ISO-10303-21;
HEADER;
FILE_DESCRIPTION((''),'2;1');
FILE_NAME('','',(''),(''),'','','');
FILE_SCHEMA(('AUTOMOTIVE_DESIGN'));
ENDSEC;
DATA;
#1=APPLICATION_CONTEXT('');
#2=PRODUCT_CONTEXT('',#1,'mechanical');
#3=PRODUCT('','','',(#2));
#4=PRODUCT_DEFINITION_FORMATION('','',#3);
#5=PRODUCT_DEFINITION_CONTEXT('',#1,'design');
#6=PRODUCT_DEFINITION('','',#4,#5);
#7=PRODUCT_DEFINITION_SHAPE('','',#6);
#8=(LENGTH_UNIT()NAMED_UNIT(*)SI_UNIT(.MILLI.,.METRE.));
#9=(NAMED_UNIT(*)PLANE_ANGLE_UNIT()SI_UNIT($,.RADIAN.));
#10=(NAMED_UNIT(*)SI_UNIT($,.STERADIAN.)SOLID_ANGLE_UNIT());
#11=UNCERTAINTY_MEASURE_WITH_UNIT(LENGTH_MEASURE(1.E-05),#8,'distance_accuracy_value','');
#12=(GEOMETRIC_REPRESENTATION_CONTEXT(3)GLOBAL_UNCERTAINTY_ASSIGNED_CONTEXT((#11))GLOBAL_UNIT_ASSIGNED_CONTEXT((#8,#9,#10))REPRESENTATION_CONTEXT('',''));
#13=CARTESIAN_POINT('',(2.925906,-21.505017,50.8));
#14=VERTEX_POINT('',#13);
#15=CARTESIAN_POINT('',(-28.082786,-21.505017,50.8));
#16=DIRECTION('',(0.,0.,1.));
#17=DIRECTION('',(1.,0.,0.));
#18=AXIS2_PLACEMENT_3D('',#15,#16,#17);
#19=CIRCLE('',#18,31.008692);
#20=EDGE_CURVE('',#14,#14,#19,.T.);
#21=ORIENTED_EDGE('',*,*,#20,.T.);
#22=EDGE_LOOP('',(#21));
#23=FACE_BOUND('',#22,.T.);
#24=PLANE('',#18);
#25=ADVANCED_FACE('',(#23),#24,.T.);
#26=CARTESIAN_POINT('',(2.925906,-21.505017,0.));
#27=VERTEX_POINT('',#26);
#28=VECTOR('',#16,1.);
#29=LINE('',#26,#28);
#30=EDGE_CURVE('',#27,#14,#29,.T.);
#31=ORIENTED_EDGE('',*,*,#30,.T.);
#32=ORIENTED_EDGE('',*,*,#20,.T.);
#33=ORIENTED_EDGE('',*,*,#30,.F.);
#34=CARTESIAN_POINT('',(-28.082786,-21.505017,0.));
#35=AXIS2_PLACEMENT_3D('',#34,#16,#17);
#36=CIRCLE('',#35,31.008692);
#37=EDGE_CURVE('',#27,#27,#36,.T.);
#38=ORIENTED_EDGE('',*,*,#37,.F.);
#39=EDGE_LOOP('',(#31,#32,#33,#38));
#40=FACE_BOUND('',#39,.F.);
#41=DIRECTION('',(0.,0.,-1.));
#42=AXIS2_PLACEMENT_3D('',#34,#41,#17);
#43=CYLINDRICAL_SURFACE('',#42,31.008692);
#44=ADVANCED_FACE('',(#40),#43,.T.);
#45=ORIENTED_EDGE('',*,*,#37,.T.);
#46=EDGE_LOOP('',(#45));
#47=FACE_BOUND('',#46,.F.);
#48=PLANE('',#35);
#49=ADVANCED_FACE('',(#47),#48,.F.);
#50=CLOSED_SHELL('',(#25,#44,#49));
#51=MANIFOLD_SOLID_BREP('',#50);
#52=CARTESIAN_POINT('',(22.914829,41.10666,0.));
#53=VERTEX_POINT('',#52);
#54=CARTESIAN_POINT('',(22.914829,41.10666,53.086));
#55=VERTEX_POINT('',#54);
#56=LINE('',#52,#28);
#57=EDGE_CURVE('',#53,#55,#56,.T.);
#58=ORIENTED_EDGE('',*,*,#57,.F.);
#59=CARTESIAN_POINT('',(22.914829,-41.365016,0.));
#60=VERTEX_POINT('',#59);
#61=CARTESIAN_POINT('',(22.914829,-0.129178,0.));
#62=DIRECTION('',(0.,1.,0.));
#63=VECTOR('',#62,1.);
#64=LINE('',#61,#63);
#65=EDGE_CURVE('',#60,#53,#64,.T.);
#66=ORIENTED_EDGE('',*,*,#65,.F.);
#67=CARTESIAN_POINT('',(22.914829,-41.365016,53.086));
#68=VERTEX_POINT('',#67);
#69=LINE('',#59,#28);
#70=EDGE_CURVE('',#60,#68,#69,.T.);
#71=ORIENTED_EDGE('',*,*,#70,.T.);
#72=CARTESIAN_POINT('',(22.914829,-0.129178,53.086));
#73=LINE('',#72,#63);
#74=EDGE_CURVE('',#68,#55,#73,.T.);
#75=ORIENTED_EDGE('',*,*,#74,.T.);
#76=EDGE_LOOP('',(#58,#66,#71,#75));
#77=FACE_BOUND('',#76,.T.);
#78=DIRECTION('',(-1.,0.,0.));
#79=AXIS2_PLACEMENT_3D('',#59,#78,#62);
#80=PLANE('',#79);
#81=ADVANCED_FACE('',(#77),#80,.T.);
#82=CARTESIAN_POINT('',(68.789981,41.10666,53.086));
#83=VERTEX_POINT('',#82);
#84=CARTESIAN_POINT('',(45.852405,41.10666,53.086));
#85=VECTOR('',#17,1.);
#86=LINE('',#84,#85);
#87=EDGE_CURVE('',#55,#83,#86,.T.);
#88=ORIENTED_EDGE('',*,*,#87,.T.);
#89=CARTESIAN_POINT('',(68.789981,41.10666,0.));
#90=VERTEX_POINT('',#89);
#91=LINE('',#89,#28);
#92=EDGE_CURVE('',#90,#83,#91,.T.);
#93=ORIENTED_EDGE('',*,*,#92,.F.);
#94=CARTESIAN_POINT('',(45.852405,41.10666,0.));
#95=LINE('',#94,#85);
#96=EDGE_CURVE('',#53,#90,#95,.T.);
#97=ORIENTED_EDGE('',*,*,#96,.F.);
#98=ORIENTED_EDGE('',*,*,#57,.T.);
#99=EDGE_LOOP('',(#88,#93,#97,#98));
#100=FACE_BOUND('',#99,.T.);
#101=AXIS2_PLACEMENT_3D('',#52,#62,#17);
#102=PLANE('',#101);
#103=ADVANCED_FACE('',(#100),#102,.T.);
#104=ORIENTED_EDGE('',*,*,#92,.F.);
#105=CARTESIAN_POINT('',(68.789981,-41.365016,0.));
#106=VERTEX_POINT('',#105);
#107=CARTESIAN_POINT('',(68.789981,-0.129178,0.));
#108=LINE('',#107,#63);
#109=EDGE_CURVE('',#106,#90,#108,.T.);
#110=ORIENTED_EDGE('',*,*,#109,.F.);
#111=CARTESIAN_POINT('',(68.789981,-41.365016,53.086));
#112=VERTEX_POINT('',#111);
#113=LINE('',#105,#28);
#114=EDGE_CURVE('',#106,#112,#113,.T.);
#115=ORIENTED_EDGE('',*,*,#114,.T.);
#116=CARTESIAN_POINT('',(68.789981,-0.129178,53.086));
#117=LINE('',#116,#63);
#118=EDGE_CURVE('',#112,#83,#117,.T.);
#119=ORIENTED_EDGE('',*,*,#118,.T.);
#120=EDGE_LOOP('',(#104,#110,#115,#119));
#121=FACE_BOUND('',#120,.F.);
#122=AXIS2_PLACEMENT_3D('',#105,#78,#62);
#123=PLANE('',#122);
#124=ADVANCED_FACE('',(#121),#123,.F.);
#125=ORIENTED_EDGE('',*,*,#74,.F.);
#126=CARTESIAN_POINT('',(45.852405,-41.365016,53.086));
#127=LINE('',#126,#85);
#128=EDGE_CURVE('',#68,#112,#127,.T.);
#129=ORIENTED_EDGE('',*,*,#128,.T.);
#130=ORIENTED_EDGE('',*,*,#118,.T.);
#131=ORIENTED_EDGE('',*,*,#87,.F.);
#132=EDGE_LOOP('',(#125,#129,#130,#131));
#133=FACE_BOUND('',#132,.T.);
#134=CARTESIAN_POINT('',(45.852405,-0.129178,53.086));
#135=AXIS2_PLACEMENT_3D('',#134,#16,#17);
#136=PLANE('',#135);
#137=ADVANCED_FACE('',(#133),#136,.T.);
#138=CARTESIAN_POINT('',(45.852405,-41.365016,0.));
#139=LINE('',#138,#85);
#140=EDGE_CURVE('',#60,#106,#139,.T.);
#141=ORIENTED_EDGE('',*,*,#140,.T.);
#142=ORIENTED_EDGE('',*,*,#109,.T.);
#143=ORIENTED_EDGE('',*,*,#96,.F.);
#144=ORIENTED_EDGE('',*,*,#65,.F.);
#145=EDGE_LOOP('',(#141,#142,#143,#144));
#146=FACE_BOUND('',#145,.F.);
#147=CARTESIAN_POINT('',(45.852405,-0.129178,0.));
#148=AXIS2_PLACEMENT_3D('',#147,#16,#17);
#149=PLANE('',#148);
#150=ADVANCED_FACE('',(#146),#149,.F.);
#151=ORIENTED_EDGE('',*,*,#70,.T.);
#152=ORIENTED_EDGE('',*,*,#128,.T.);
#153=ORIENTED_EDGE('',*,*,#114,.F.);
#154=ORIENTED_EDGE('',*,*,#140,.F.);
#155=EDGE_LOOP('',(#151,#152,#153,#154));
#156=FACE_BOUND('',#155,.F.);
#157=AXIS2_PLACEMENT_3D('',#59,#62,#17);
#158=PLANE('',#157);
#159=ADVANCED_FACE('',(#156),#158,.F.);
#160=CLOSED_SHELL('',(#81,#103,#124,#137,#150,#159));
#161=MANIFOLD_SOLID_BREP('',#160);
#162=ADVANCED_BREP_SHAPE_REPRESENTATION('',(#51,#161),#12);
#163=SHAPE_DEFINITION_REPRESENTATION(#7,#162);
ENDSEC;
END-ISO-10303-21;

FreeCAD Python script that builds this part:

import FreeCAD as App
import Part
import Sketcher

V = App.Vector
Q = App.Units.Quantity


def add_polygon(sketch, points):
    """Adds a closed chain of lines whose ends are joined by coincident constraints."""
    first, n = sketch.GeometryCount, len(points)
    for a, b in zip(points, points[1:] + points[:1]):
        sketch.addGeometry(Part.LineSegment(App.Vector(*a, 0), App.Vector(*b, 0)), False)
    for i in range(n):
        sketch.addConstraint(Sketcher.Constraint("Coincident", first + i, 2, first + (i + 1) % n, 1))

doc = App.newDocument("Part")
body = doc.addObject("PartDesign::Body", "Body")

# Sketch on XY plane
sketch1 = body.newObject("Sketcher::SketchObject", "Sketch")
sketch1.AttachmentSupport = (doc.getObject("XY_Plane"), [""])
sketch1.MapMode = "FlatFace"
sketch1.addGeometry(Part.Circle(V(-28, -22, 0), V(0, 0, 1), 31), False)
sketch1.addConstraint([
    Sketcher.Constraint("Diameter", 0, 62.017384),
    Sketcher.Constraint("DistanceX", 0, 3, -1, 1, 28.082786),
    Sketcher.Constraint("DistanceY", 0, 3, -1, 1, 21.505017),
])
pad1 = body.newObject("PartDesign::Pad", "Pad")
pad1.Profile = sketch1
pad1.Length = Q("2 in")
body2 = doc.addObject("PartDesign::Body", "Body001")

# Sketch on XY plane
sketch2 = body2.newObject("Sketcher::SketchObject", "Sketch001")
sketch2.AttachmentSupport = (doc.getObject("XY_Plane001"), [""])
sketch2.MapMode = "FlatFace"
add_polygon(sketch2, [(23, 41), (23, -41), (69, -41), (69, 41)])  # lines 0-3
sketch2.addConstraint([
    Sketcher.Constraint("Vertical", 0),
    Sketcher.Constraint("Horizontal", 1),
    Sketcher.Constraint("Vertical", 2),
    Sketcher.Constraint("Horizontal", 3),
    Sketcher.Constraint("DistanceX", 1, 1, 1, 2, 45.875152),
    Sketcher.Constraint("DistanceY", 0, 2, 0, 1, 82.471676),
    Sketcher.Constraint("DistanceX", -1, 1, 0, 2, 22.914829),
    Sketcher.Constraint("DistanceY", -1, 1, 2, 2, 41.10666),
])
pad2 = body2.newObject("PartDesign::Pad", "Pad001")
pad2.Profile = sketch2
pad2.Length = Q("2.09 in")

doc.recompute()
